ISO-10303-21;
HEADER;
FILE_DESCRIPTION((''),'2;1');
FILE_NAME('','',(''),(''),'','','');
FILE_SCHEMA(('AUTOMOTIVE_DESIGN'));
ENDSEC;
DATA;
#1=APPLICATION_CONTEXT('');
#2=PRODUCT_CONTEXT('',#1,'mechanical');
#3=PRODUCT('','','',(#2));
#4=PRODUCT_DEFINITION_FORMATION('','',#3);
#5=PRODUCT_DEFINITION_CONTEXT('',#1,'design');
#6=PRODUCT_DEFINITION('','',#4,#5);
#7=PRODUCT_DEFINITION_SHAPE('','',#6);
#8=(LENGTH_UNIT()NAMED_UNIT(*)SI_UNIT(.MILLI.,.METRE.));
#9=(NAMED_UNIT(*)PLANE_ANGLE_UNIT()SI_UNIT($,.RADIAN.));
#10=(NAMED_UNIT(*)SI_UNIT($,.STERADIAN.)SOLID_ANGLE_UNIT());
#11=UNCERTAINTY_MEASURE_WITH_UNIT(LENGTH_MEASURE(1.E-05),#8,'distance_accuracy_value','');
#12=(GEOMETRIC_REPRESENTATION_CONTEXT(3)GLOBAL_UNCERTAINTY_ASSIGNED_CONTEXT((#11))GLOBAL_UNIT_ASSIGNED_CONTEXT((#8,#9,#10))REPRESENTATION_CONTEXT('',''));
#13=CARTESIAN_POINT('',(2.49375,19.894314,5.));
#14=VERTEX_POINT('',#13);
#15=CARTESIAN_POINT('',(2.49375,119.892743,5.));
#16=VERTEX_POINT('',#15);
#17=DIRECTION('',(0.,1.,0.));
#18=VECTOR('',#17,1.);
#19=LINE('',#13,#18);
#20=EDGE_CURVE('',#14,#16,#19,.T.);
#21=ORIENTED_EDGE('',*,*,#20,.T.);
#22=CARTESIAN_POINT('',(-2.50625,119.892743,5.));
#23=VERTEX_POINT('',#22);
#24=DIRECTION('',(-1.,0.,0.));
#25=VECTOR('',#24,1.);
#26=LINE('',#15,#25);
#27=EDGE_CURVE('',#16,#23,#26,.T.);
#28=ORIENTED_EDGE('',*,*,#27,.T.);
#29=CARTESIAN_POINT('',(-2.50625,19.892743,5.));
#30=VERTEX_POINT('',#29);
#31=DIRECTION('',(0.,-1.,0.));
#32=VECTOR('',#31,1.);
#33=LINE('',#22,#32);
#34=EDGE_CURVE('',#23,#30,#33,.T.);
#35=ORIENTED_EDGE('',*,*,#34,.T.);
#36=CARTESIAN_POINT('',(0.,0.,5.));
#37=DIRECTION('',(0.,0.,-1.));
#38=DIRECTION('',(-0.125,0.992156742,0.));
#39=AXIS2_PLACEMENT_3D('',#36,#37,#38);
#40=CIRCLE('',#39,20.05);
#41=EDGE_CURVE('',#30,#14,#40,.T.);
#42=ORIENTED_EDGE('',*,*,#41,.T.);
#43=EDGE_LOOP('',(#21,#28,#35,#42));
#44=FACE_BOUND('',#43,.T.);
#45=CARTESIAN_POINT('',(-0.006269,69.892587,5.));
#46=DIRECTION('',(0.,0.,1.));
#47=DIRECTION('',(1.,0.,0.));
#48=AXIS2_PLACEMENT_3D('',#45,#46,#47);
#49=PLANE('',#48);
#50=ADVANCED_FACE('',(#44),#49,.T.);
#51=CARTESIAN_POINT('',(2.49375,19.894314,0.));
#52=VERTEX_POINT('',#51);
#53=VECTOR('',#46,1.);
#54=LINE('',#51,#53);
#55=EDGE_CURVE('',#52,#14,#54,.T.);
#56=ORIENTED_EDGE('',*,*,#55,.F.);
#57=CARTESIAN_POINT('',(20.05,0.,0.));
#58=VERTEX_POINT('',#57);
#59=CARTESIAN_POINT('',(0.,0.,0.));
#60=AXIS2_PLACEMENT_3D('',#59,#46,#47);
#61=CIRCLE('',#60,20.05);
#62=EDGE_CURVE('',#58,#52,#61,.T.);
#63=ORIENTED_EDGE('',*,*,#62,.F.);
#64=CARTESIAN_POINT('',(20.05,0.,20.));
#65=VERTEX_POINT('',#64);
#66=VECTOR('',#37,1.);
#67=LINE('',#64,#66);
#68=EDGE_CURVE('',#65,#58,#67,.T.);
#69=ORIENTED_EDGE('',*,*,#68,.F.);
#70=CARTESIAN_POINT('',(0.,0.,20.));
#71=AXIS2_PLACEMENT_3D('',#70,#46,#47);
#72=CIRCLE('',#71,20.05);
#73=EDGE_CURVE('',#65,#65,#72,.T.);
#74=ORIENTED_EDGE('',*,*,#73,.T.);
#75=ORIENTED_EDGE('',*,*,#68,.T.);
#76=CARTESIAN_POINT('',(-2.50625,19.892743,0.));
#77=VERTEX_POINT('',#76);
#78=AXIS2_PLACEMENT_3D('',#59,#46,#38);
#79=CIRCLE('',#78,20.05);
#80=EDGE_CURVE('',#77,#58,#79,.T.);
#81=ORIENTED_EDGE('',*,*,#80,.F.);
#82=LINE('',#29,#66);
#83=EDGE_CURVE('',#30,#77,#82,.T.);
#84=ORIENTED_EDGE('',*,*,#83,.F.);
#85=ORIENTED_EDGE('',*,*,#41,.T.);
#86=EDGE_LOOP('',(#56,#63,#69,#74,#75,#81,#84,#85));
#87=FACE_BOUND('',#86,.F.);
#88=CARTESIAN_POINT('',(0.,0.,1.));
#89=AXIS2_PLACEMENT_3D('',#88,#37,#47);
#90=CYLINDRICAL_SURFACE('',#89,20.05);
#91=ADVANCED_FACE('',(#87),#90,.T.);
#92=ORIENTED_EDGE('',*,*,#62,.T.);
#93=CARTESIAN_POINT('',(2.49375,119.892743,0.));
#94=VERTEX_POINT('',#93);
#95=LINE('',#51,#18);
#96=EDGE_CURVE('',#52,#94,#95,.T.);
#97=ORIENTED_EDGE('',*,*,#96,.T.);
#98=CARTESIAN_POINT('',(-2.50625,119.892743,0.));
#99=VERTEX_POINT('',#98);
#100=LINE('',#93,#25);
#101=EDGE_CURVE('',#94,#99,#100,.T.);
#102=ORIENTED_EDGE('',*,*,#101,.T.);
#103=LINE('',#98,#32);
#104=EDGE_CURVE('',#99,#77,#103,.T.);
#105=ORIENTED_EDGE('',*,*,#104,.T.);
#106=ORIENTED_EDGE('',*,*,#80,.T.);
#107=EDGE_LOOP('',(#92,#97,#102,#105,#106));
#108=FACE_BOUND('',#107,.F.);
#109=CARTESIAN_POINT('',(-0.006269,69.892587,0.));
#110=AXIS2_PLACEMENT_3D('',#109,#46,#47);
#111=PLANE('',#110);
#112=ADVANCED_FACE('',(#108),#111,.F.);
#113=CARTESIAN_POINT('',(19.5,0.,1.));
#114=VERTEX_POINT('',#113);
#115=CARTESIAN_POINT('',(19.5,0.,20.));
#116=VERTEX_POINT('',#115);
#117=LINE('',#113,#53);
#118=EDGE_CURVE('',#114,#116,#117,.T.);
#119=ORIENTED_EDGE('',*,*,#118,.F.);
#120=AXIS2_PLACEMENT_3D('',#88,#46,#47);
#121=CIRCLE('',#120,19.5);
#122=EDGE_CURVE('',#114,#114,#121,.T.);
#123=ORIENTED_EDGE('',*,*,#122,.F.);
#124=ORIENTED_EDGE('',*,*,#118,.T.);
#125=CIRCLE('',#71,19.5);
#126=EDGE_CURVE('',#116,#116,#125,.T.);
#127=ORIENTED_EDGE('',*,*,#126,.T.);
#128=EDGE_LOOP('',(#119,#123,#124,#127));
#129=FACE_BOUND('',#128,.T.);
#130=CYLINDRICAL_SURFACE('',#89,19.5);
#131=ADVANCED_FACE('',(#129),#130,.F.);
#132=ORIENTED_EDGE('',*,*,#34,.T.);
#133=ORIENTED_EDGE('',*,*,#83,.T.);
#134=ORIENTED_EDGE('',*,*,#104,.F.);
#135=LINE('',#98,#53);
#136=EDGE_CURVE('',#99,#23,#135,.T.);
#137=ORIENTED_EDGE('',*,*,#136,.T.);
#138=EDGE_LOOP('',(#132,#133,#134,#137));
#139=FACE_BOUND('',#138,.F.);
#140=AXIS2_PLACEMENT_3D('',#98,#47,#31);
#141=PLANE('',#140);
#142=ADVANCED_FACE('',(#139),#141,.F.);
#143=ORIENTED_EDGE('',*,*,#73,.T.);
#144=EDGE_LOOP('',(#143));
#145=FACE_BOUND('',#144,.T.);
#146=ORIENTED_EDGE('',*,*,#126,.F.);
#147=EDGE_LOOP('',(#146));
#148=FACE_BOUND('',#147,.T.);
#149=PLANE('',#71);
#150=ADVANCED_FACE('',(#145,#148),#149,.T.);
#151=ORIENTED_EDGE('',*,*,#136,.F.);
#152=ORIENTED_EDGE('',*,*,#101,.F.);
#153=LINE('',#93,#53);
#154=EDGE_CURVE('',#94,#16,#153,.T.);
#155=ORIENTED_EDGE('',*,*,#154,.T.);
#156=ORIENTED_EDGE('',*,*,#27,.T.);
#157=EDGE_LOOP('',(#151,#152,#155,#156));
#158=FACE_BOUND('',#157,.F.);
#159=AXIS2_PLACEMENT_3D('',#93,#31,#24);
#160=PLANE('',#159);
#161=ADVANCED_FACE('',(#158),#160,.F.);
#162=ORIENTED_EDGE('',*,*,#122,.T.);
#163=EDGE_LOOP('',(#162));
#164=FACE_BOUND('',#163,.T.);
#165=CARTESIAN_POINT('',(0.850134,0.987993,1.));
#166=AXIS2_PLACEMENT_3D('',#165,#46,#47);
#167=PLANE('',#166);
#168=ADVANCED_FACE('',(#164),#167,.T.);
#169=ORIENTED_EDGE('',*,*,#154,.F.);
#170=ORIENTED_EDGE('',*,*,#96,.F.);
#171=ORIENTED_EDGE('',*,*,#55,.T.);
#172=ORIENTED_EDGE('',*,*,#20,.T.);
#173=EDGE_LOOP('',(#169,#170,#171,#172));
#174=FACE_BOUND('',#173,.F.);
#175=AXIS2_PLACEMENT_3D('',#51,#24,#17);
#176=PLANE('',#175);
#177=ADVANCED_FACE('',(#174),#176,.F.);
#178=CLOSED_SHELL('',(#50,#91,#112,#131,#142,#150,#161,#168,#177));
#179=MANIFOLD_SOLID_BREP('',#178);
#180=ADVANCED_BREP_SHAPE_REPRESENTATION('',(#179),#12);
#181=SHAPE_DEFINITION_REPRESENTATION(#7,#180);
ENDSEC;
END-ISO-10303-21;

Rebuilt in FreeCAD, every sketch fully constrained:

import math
import FreeCAD as App
import Part
import Sketcher
from FreeCAD import Vector

doc = App.newDocument("Part")
body = doc.addObject("PartDesign::Body", "Body")

sketch1 = body.newObject("Sketcher::SketchObject", "Sketch")
sketch1.AttachmentSupport = (doc.getObject("XY_Plane"), [""])
sketch1.MapMode = "FlatFace"
sketch1.addGeometry([
    Part.ArcOfCircle(Part.Circle(Vector(0, 0, 0), Vector(0, 0, 1), 20), math.radians(97), math.radians(360)),
    Part.ArcOfCircle(Part.Circle(Vector(0, 0, 0), Vector(0, 0, 1), 20), math.radians(0), math.radians(83)),
    Part.ArcOfCircle(Part.Circle(Vector(0, 0, 0), Vector(0, 0, 1), 20), math.radians(82.86), math.radians(97.18)),
], False)
sketch1.addConstraint([
    Sketcher.Constraint("Tangent", 0, 2, 1, 1),
    Sketcher.Constraint("Tangent", 1, 2, 2, 1),
    Sketcher.Constraint("Tangent", 2, 2, 0, 1),
    Sketcher.Constraint("Coincident", 0, 3, -1, 1),
    Sketcher.Constraint("PointOnObject", 0, 2, -1),
    Sketcher.Constraint("Radius", 0, 20.05),
    Sketcher.Constraint("DistanceX", 2, 2, 1, 2, 5.0),
    Sketcher.Constraint("DistanceX", -1, 1, 1, 2, 2.49375),
])
pad1 = body.newObject("PartDesign::Pad", "Pad")
pad1.Profile = sketch1
pad1.Length = 1

sketch2 = body.newObject("Sketcher::SketchObject", "Sketch001")
sketch2.AttachmentSupport = (doc.getObject("XY_Plane"), [""])
sketch2.MapMode = "FlatFace"
sketch2.addGeometry([
    Part.ArcOfCircle(Part.Circle(Vector(0, 0, 0), Vector(0, 0, 1), 20), math.radians(82.86), math.radians(97.18)),
    Part.LineSegment(Vector(2, 20, 0), Vector(2, 120, 0)),
    Part.LineSegment(Vector(2, 120, 0), Vector(-3, 120, 0)),
    Part.LineSegment(Vector(-3, 120, 0), Vector(-3, 20, 0)),
], False)
sketch2.addConstraint([
    Sketcher.Constraint("Coincident", 0, 1, 1, 1),
    Sketcher.Constraint("Coincident", 1, 2, 2, 1),
    Sketcher.Constraint("Coincident", 2, 2, 3, 1),
    Sketcher.Constraint("Coincident", 3, 2, 0, 2),
    Sketcher.Constraint("Vertical", 1),
    Sketcher.Constraint("Horizontal", 2),
    Sketcher.Constraint("Vertical", 3),
    Sketcher.Constraint("Coincident", 0, 3, -1, 1),
    Sketcher.Constraint("DistanceX", 2, 2, 2, 1, 5.0),
    Sketcher.Constraint("DistanceY", 3, 2, 3, 1, 100.0),
    Sketcher.Constraint("Radius", 0, 20.05),
    Sketcher.Constraint("DistanceY", 1, 1, 1, 2, 99.998429),
])
pad2 = body.newObject("PartDesign::Pad", "Pad001")
pad2.Profile = sketch2
pad2.Length = 5

sketch3 = body.newObject("Sketcher::SketchObject", "Sketch002")
sketch3.AttachmentSupport = (doc.getObject("XY_Plane"), [""])
sketch3.MapMode = "FlatFace"
sketch3.AttachmentOffset = App.Placement(Vector(0, 0, 1), App.Rotation())
sketch3.addGeometry([
    Part.Circle(Vector(0, 0, 0), Vector(0, 0, 1), 20),
    Part.Circle(Vector(0, 0, 0), Vector(0, 0, 1), 20),
], False)
sketch3.addConstraint([
    Sketcher.Constraint("Coincident", 0, 3, -1, 1),
    Sketcher.Constraint("Coincident", 1, 3, -1, 1),
    Sketcher.Constraint("Diameter", 1, 39.0),
    Sketcher.Constraint("Diameter", 0, 40.1),
])
pad3 = body.newObject("PartDesign::Pad", "Pad002")
pad3.Profile = sketch3
pad3.Length = 19

doc.recompute()
